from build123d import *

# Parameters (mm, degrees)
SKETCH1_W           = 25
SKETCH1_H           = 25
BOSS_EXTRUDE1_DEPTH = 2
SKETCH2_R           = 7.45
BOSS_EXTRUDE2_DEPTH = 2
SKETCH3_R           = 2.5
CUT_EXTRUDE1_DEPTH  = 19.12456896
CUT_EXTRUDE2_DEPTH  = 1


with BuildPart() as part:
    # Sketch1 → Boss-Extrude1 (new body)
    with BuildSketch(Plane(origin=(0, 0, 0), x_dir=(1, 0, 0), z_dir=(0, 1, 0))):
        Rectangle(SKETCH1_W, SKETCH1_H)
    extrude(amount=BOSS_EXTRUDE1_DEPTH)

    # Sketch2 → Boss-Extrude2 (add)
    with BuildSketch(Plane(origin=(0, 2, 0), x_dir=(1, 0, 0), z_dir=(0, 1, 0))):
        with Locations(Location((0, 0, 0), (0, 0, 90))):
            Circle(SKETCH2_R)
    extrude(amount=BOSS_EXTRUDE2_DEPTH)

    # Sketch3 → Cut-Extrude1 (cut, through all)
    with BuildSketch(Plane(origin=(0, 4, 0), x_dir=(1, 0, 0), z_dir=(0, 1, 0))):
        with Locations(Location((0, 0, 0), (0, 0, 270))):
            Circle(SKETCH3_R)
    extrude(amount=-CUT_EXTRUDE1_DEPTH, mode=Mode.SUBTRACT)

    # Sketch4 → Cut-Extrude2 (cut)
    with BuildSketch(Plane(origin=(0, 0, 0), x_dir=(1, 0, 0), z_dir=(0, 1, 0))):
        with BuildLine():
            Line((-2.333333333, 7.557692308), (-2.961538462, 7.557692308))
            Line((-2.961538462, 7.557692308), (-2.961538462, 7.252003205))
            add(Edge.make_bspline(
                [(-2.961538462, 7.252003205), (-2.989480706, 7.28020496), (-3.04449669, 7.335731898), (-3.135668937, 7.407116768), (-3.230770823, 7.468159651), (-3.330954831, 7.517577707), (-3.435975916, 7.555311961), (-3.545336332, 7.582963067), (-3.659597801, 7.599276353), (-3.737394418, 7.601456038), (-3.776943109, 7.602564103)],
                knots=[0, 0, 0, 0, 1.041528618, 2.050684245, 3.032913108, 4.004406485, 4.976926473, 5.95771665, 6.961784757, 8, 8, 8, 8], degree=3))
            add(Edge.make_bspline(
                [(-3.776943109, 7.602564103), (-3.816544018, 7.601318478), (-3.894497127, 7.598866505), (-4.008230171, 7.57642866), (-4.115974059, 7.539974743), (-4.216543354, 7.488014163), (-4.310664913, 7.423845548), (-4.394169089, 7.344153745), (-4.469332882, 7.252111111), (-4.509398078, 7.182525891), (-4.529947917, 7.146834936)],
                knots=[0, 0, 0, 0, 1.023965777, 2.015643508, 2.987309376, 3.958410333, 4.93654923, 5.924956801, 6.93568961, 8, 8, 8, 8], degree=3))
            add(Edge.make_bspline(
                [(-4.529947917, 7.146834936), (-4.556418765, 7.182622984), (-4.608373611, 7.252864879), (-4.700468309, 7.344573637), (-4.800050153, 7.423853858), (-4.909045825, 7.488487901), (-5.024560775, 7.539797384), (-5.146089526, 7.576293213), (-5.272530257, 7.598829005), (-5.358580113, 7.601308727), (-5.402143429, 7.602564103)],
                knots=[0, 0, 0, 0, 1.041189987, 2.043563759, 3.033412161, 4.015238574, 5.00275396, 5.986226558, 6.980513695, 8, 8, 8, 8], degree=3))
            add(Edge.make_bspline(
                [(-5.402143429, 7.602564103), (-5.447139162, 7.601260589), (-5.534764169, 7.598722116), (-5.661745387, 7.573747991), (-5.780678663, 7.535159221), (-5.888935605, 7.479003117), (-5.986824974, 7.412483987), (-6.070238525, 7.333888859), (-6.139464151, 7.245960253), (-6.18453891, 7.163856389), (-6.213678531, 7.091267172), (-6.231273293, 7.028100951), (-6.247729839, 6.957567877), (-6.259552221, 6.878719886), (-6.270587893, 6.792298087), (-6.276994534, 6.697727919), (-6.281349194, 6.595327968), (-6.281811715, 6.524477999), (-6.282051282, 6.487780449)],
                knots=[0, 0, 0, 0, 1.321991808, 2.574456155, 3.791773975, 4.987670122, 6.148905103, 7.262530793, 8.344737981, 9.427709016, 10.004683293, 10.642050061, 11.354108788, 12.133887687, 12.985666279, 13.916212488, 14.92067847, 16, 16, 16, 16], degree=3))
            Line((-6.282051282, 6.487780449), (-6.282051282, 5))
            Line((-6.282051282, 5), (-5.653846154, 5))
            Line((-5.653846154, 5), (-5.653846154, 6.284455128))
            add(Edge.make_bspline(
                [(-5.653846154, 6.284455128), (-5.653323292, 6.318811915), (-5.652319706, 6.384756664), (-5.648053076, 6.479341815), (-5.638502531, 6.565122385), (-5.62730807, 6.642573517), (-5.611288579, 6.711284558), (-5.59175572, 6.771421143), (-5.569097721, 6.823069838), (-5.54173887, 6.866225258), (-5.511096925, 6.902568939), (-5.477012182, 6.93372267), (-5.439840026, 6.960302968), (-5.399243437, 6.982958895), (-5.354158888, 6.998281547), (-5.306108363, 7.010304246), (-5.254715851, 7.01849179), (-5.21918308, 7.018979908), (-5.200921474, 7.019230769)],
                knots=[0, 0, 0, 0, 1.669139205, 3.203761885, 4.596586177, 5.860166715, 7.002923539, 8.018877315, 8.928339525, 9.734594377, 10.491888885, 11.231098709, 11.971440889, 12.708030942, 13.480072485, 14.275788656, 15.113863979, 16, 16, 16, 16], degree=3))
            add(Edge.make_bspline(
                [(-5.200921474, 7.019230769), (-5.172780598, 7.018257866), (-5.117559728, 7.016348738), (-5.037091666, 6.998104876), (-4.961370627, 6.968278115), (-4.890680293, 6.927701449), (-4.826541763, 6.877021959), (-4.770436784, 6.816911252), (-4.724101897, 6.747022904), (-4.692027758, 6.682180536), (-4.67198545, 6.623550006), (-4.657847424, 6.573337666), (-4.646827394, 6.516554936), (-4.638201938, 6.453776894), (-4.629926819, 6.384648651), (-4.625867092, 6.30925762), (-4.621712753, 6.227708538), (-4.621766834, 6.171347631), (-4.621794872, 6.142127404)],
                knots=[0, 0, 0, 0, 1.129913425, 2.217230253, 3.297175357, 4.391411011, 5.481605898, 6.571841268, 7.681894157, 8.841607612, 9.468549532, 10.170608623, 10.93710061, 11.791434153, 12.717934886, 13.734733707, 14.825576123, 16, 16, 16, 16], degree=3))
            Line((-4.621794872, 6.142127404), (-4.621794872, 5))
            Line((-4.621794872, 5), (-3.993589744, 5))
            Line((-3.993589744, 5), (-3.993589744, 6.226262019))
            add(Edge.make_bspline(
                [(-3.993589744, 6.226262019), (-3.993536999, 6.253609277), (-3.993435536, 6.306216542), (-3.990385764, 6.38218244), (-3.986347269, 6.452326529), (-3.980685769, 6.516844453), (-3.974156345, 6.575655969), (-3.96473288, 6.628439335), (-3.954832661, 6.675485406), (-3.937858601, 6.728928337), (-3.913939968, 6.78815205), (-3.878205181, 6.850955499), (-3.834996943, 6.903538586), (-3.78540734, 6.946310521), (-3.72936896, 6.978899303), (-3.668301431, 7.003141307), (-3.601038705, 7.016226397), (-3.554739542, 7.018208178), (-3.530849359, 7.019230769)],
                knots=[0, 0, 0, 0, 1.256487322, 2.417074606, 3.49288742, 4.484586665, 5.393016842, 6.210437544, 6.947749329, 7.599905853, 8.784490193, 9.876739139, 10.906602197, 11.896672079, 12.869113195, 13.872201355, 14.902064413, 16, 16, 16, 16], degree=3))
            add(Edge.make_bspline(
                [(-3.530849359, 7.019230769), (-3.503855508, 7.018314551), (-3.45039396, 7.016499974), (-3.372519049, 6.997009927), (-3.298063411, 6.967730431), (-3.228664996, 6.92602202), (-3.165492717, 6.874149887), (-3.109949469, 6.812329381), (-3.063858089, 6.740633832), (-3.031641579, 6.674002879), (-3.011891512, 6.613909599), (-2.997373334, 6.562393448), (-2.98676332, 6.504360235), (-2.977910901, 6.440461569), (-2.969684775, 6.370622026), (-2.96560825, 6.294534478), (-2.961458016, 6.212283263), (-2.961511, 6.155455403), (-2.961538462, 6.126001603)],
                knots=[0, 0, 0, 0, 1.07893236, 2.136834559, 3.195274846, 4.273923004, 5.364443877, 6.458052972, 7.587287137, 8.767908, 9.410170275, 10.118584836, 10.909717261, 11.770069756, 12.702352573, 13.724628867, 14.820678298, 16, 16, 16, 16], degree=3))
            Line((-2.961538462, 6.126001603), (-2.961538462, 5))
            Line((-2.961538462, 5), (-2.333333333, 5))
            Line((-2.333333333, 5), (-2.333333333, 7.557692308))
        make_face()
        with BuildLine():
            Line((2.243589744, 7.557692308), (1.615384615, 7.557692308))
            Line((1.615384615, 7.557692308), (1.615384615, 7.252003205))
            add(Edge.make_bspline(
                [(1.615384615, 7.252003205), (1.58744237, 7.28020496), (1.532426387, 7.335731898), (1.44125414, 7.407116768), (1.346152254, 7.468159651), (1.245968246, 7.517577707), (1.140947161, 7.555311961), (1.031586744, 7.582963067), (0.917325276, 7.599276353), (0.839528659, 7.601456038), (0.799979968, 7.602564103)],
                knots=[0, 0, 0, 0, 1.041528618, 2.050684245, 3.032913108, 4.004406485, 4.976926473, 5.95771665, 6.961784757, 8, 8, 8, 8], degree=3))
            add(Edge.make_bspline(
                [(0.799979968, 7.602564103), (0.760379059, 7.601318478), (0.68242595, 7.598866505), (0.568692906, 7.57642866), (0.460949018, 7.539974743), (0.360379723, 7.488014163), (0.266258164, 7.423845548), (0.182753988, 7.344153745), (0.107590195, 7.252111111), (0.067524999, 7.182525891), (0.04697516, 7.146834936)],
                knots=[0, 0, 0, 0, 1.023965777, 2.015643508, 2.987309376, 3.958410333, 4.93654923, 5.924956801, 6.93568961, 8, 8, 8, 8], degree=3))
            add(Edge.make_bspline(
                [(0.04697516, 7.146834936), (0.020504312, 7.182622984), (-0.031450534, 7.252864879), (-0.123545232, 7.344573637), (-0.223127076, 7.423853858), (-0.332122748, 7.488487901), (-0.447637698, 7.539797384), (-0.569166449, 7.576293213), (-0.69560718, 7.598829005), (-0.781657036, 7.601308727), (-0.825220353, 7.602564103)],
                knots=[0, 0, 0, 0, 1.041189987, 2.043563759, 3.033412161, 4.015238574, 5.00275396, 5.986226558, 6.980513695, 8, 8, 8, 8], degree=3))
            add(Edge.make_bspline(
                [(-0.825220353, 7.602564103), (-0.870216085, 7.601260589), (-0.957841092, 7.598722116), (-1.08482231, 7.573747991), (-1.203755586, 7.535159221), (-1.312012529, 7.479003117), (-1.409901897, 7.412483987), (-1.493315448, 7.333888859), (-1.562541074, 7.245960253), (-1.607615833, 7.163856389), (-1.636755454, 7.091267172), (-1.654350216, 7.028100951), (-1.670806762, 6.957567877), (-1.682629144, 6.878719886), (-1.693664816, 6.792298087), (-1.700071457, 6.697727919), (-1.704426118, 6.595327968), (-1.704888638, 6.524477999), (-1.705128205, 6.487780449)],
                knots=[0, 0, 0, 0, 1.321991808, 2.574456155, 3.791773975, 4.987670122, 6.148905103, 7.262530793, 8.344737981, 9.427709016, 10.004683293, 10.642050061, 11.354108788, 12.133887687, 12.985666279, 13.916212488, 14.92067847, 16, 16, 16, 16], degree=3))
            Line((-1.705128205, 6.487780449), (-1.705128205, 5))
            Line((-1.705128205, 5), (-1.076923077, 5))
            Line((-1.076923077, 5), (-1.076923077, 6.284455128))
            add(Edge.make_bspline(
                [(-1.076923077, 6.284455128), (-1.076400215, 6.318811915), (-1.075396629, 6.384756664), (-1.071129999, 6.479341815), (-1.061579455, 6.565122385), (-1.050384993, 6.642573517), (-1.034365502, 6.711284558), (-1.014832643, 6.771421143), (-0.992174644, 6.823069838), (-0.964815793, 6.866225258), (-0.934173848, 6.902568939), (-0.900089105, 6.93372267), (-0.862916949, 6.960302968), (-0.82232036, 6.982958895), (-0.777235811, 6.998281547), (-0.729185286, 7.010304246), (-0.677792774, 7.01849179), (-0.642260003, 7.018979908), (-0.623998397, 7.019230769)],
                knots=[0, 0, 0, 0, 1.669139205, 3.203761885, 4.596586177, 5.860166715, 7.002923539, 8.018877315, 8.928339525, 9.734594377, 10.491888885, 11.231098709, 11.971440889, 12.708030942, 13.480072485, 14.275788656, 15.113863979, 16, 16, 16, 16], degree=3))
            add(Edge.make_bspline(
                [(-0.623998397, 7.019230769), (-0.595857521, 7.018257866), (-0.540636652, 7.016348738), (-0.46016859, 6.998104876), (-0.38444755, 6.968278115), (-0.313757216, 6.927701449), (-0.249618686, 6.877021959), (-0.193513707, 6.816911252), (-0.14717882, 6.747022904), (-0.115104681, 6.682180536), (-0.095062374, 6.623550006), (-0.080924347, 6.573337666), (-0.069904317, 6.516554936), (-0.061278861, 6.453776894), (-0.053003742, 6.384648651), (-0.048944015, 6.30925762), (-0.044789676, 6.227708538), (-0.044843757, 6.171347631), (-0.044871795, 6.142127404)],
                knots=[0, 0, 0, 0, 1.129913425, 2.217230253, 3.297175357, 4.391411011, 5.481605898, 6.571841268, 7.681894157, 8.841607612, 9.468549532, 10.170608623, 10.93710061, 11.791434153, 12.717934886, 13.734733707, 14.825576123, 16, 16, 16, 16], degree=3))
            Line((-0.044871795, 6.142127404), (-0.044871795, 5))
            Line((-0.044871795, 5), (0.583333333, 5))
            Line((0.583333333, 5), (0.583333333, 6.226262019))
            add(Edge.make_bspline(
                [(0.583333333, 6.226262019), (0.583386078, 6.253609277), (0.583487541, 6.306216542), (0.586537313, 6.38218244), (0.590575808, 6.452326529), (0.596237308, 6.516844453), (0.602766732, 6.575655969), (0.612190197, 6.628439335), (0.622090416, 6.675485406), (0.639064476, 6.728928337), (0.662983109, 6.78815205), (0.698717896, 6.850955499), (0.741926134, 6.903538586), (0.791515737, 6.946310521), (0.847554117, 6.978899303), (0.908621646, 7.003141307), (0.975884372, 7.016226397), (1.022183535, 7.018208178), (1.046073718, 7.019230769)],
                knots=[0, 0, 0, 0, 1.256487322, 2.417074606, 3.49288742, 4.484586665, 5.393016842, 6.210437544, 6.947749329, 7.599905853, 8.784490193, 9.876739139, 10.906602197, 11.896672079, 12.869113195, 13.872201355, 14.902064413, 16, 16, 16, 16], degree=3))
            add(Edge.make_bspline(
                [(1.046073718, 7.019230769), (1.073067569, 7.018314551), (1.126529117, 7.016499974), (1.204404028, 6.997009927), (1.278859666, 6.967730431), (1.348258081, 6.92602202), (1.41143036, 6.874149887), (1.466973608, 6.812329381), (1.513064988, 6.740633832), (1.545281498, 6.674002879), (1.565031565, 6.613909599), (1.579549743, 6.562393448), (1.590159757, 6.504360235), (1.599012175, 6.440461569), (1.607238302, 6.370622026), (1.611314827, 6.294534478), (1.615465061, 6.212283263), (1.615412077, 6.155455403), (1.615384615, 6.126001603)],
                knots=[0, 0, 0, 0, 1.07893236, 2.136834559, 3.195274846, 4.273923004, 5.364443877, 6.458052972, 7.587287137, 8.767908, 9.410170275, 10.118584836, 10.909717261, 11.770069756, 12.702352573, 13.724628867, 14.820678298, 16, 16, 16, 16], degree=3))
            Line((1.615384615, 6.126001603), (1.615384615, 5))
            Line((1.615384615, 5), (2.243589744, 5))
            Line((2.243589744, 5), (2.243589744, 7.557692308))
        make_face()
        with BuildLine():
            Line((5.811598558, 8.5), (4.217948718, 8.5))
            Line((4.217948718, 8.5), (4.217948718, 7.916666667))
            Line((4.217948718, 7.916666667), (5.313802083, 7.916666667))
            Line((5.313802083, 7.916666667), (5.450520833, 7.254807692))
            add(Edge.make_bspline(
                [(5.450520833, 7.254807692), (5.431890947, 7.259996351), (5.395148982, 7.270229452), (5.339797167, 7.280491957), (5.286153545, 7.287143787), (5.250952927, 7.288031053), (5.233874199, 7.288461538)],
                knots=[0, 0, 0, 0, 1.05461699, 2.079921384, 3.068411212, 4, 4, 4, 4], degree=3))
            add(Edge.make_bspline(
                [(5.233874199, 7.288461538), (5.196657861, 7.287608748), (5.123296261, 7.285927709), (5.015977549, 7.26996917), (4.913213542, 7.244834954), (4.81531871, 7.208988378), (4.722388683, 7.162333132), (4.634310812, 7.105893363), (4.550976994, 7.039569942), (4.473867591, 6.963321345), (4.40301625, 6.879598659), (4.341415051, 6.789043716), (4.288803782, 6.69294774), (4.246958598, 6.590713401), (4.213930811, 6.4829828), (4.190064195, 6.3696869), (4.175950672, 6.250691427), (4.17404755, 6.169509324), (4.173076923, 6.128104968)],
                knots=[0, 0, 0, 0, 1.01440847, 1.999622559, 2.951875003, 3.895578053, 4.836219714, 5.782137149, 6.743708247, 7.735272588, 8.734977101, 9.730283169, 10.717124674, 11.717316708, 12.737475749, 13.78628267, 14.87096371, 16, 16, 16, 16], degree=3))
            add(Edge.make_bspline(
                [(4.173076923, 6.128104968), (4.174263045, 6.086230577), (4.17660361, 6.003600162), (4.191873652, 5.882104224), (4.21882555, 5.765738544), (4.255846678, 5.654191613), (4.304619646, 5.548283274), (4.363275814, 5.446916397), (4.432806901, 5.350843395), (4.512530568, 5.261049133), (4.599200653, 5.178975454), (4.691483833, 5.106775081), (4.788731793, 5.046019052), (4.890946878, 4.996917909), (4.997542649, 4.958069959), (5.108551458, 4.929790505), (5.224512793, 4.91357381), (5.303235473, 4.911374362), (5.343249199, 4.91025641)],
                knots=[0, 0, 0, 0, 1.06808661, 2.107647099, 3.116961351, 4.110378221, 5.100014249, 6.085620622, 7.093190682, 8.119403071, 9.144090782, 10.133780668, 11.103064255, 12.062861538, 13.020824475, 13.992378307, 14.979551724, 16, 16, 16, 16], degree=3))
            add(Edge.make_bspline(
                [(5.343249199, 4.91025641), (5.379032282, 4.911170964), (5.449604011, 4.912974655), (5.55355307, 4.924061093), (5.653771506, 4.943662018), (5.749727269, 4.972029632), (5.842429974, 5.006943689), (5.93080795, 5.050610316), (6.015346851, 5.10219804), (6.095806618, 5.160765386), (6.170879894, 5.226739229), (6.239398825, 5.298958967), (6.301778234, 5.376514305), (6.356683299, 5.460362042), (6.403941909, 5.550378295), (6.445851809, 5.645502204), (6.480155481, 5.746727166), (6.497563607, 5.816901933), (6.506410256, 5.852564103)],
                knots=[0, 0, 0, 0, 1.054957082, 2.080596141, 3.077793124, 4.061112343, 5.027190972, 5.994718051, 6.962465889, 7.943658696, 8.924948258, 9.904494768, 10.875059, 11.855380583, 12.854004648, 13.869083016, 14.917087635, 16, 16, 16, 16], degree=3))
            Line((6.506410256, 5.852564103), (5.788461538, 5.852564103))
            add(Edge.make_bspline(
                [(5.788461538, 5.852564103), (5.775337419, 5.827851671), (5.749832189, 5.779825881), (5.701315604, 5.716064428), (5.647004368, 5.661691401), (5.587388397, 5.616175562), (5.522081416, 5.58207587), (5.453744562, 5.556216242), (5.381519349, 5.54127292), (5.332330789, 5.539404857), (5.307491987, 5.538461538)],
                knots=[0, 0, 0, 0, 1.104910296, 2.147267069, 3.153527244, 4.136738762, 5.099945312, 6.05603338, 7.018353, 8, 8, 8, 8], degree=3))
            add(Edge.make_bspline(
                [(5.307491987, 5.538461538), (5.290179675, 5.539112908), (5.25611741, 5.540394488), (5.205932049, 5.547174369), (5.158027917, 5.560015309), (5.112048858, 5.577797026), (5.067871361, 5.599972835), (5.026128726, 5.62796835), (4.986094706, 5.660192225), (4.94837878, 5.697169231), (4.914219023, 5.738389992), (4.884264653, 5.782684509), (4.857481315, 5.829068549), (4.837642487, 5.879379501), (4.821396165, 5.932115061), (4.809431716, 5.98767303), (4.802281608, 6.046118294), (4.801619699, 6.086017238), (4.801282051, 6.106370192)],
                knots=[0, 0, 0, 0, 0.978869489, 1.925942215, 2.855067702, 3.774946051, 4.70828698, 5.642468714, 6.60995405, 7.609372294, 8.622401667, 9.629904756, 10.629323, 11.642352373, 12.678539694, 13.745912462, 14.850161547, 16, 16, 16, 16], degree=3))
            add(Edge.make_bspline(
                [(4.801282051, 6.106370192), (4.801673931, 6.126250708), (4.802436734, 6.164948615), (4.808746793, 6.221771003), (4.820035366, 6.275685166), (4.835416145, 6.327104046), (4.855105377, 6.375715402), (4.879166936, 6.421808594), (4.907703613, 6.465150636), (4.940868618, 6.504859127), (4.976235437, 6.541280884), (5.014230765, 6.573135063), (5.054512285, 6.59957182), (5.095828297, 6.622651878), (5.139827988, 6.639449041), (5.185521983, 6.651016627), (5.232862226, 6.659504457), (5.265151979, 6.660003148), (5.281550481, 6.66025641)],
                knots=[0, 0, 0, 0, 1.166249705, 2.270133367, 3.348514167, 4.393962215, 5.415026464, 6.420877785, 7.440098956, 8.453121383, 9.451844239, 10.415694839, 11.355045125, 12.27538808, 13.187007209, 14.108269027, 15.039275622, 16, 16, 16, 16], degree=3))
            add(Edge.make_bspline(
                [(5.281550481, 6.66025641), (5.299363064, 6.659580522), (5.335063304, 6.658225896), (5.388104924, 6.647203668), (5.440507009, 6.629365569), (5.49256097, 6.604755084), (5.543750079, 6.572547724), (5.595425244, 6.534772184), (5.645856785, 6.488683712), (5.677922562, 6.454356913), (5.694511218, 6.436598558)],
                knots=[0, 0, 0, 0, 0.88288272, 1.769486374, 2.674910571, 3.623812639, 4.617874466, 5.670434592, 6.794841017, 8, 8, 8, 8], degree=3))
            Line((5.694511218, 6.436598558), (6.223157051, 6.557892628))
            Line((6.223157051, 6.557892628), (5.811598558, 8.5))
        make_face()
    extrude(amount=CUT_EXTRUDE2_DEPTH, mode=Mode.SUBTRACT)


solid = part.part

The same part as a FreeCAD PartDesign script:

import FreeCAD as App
import Part
import Sketcher

V = App.Vector
Q = App.Units.Quantity

doc = App.newDocument("Part")
body = doc.addObject("PartDesign::Body", "Body")

sketch1 = body.newObject("Sketcher::SketchObject", "Sketch")
sketch1.AttachmentSupport = (doc.getObject("XZ_Plane"), [""])
sketch1.MapMode = "FlatFace"
sketch1.addGeometry(Part.LineSegment(V(-12, -12, 0), V(-12, 12, 0)), False)
sketch1.addGeometry(Part.LineSegment(V(-12, 12, 0), V(12, 12, 0)), False)
sketch1.addGeometry(Part.LineSegment(V(12, 12, 0), V(12, -12, 0)), False)
sketch1.addGeometry(Part.LineSegment(V(12, -12, 0), V(-12, -12, 0)), False)
sketch1.addConstraint(Sketcher.Constraint("Coincident", 0, 2, 1, 1))
sketch1.addConstraint(Sketcher.Constraint("Coincident", 1, 2, 2, 1))
sketch1.addConstraint(Sketcher.Constraint("Coincident", 2, 2, 3, 1))
sketch1.addConstraint(Sketcher.Constraint("Coincident", 3, 2, 0, 1))
sketch1.addConstraint(Sketcher.Constraint("Vertical", 0))
sketch1.addConstraint(Sketcher.Constraint("Horizontal", 1))
sketch1.addConstraint(Sketcher.Constraint("Vertical", 2))
sketch1.addConstraint(Sketcher.Constraint("Horizontal", 3))
sketch1.addConstraint(Sketcher.Constraint("Symmetric", 0, 2, 2, 2, -1, 1))
sketch1.addConstraint(Sketcher.Constraint("Equal", 3, 0))
sketch1.addConstraint(Sketcher.Constraint("DistanceX", 1, 1, 1, 2, Q("25 mm")))
pad1 = body.newObject("PartDesign::Pad", "Pad")
pad1.Profile = sketch1
pad1.Length = 2
pad1.Reversed = True

sketch2 = body.newObject("Sketcher::SketchObject", "Sketch001")
sketch2.AttachmentSupport = (doc.getObject("XZ_Plane"), [""])
sketch2.MapMode = "FlatFace"
sketch2.AttachmentOffset = App.Placement(V(0, 0, -2), App.Rotation())
sketch2.addGeometry(Part.Circle(V(0, 0, 0), V(0, 0, 1), 7), False)
sketch2.addConstraint(Sketcher.Constraint("Coincident", 0, 3, -1, 1))
sketch2.addConstraint(Sketcher.Constraint("Diameter", 0, Q("14.9 mm")))
pad2 = body.newObject("PartDesign::Pad", "Pad001")
pad2.Profile = sketch2
pad2.Length = 2
pad2.Reversed = True

sketch3 = body.newObject("Sketcher::SketchObject", "Sketch002")
sketch3.AttachmentSupport = (doc.getObject("XZ_Plane"), [""])
sketch3.MapMode = "FlatFace"
sketch3.AttachmentOffset = App.Placement(V(0, 0, -4), App.Rotation())
sketch3.addGeometry(Part.Circle(V(0, 0, 0), V(0, 0, 1), 2.5), False)
sketch3.addConstraint(Sketcher.Constraint("Coincident", 0, 3, -1, 1))
sketch3.addConstraint(Sketcher.Constraint("Diameter", 0, Q("5 mm")))
pocket1 = body.newObject("PartDesign::Pocket", "Pocket")
pocket1.Profile = sketch3
pocket1.Type = "ThroughAll"
pocket1.Reversed = True

sketch4 = body.newObject("Sketcher::SketchObject", "Sketch003")
sketch4.AttachmentSupport = (doc.getObject("XZ_Plane"), [""])
sketch4.MapMode = "FlatFace"
sketch4.addGeometry(Part.LineSegment(V(-2.333333, -7.557692, 0), V(-2.961538, -7.557692, 0)), False)
sketch4.addGeometry(Part.LineSegment(V(-2.961538, -7.557692, 0), V(-2.961538, -7.252003, 0)), False)
sketch4.addGeometry(Part.BSplineCurve([V(-2.961538, -7.252003, 0), V(-2.989481, -7.280205, 0), V(-3.044497, -7.335732, 0), V(-3.135669, -7.407117, 0), V(-3.230771, -7.46816, 0), V(-3.330955, -7.517578, 0), V(-3.435976, -7.555312, 0), V(-3.545336, -7.582963, 0), V(-3.659598, -7.599276, 0), V(-3.737394, -7.601456, 0), V(-3.776943, -7.602564, 0)], [4, 1, 1, 1, 1, 1, 1, 1, 4], [0, 1.041528618, 2.050684245, 3.032913108, 4.004406485, 4.976926473, 5.95771665, 6.961784757, 8], False, 3, [1, 1, 1, 1, 1, 1, 1, 1, 1, 1, 1], False), False)
sketch4.addGeometry(Part.BSplineCurve([V(-3.776943, -7.602564, 0), V(-3.816544, -7.601318, 0), V(-3.894497, -7.598867, 0), V(-4.00823, -7.576429, 0), V(-4.115974, -7.539975, 0), V(-4.216543, -7.488014, 0), V(-4.310665, -7.423846, 0), V(-4.394169, -7.344154, 0), V(-4.469333, -7.252111, 0), V(-4.509398, -7.182526, 0), V(-4.529948, -7.146835, 0)], [4, 1, 1, 1, 1, 1, 1, 1, 4], [0, 1.023965777, 2.015643508, 2.987309376, 3.958410333, 4.93654923, 5.924956801, 6.93568961, 8], False, 3, [1, 1, 1, 1, 1, 1, 1, 1, 1, 1, 1], False), False)
sketch4.addGeometry(Part.BSplineCurve([V(-4.529948, -7.146835, 0), V(-4.556419, -7.182623, 0), V(-4.608374, -7.252865, 0), V(-4.700468, -7.344574, 0), V(-4.80005, -7.423854, 0), V(-4.909046, -7.488488, 0), V(-5.024561, -7.539797, 0), V(-5.14609, -7.576293, 0), V(-5.27253, -7.598829, 0), V(-5.35858, -7.601309, 0), V(-5.402143, -7.602564, 0)], [4, 1, 1, 1, 1, 1, 1, 1, 4], [0, 1.041189987, 2.043563759, 3.033412161, 4.015238574, 5.00275396, 5.986226558, 6.980513695, 8], False, 3, [1, 1, 1, 1, 1, 1, 1, 1, 1, 1, 1], False), False)
sketch4.addGeometry(Part.BSplineCurve([V(-5.402143, -7.602564, 0), V(-5.447139, -7.601261, 0), V(-5.534764, -7.598722, 0), V(-5.661745, -7.573748, 0), V(-5.780679, -7.535159, 0), V(-5.888936, -7.479003, 0), V(-5.986825, -7.412484, 0), V(-6.070239, -7.333889, 0), V(-6.139464, -7.24596, 0), V(-6.184539, -7.163856, 0), V(-6.213679, -7.091267, 0), V(-6.231273, -7.028101, 0), V(-6.24773, -6.957568, 0), V(-6.259552, -6.87872, 0), V(-6.270588, -6.792298, 0), V(-6.276995, -6.697728, 0), V(-6.281349, -6.595328, 0), V(-6.281812, -6.524478, 0), V(-6.282051, -6.48778, 0)], [4, 1, 1, 1, 1, 1, 1, 1, 1, 1, 1, 1, 1, 1, 1, 1, 4], [0, 1.321991808, 2.574456155, 3.791773975, 4.987670122, 6.148905103, 7.262530793, 8.344737981, 9.427709016, 10.004683293, 10.642050061, 11.354108788, 12.133887687, 12.985666279, 13.916212488, 14.92067847, 16], False, 3, [1, 1, 1, 1, 1, 1, 1, 1, 1, 1, 1, 1, 1, 1, 1, 1, 1, 1, 1], False), False)
sketch4.addGeometry(Part.LineSegment(V(-6.282051, -6.48778, 0), V(-6.282051, -5, 0)), False)
sketch4.addGeometry(Part.LineSegment(V(-6.282051, -5, 0), V(-5.653846, -5, 0)), False)
sketch4.addGeometry(Part.LineSegment(V(-5.653846, -5, 0), V(-5.653846, -6.284455, 0)), False)
sketch4.addGeometry(Part.BSplineCurve([V(-5.653846, -6.284455, 0), V(-5.653323, -6.318812, 0), V(-5.65232, -6.384757, 0), V(-5.648053, -6.479342, 0), V(-5.638503, -6.565122, 0), V(-5.627308, -6.642574, 0), V(-5.611289, -6.711285, 0), V(-5.591756, -6.771421, 0), V(-5.569098, -6.82307, 0), V(-5.541739, -6.866225, 0), V(-5.511097, -6.902569, 0), V(-5.477012, -6.933723, 0), V(-5.43984, -6.960303, 0), V(-5.399243, -6.982959, 0), V(-5.354159, -6.998282, 0), V(-5.306108, -7.010304, 0), V(-5.254716, -7.018492, 0), V(-5.219183, -7.01898, 0), V(-5.200921, -7.019231, 0)], [4, 1, 1, 1, 1, 1, 1, 1, 1, 1, 1, 1, 1, 1, 1, 1, 4], [0, 1.669139205, 3.203761885, 4.596586177, 5.860166715, 7.002923539, 8.018877315, 8.928339525, 9.734594377, 10.491888885, 11.231098709, 11.971440889, 12.708030942, 13.480072485, 14.275788656, 15.113863979, 16], False, 3, [1, 1, 1, 1, 1, 1, 1, 1, 1, 1, 1, 1, 1, 1, 1, 1, 1, 1, 1], False), False)
sketch4.addGeometry(Part.BSplineCurve([V(-5.200921, -7.019231, 0), V(-5.172781, -7.018258, 0), V(-5.11756, -7.016349, 0), V(-5.037092, -6.998105, 0), V(-4.961371, -6.968278, 0), V(-4.89068, -6.927701, 0), V(-4.826542, -6.877022, 0), V(-4.770437, -6.816911, 0), V(-4.724102, -6.747023, 0), V(-4.692028, -6.682181, 0), V(-4.671985, -6.62355, 0), V(-4.657847, -6.573338, 0), V(-4.646827, -6.516555, 0), V(-4.638202, -6.453777, 0), V(-4.629927, -6.384649, 0), V(-4.625867, -6.309258, 0), V(-4.621713, -6.227709, 0), V(-4.621767, -6.171348, 0), V(-4.621795, -6.142127, 0)], [4, 1, 1, 1, 1, 1, 1, 1, 1, 1, 1, 1, 1, 1, 1, 1, 4], [0, 1.129913425, 2.217230253, 3.297175357, 4.391411011, 5.481605898, 6.571841268, 7.681894157, 8.841607612, 9.468549532, 10.170608623, 10.93710061, 11.791434153, 12.717934886, 13.734733707, 14.825576123, 16], False, 3, [1, 1, 1, 1, 1, 1, 1, 1, 1, 1, 1, 1, 1, 1, 1, 1, 1, 1, 1], False), False)
sketch4.addGeometry(Part.LineSegment(V(-4.621795, -6.142127, 0), V(-4.621795, -5, 0)), False)
sketch4.addGeometry(Part.LineSegment(V(-4.621795, -5, 0), V(-3.99359, -5, 0)), False)
sketch4.addGeometry(Part.LineSegment(V(-3.99359, -5, 0), V(-3.99359, -6.226262, 0)), False)
sketch4.addGeometry(Part.BSplineCurve([V(-3.99359, -6.226262, 0), V(-3.993537, -6.253609, 0), V(-3.993436, -6.306217, 0), V(-3.990386, -6.382182, 0), V(-3.986347, -6.452327, 0), V(-3.980686, -6.516844, 0), V(-3.974156, -6.575656, 0), V(-3.964733, -6.628439, 0), V(-3.954833, -6.675485, 0), V(-3.937859, -6.728928, 0), V(-3.91394, -6.788152, 0), V(-3.878205, -6.850955, 0), V(-3.834997, -6.903539, 0), V(-3.785407, -6.946311, 0), V(-3.729369, -6.978899, 0), V(-3.668301, -7.003141, 0), V(-3.601039, -7.016226, 0), V(-3.55474, -7.018208, 0), V(-3.530849, -7.019231, 0)], [4, 1, 1, 1, 1, 1, 1, 1, 1, 1, 1, 1, 1, 1, 1, 1, 4], [0, 1.256487322, 2.417074606, 3.49288742, 4.484586665, 5.393016842, 6.210437544, 6.947749329, 7.599905853, 8.784490193, 9.876739139, 10.906602197, 11.896672079, 12.869113195, 13.872201355, 14.902064413, 16], False, 3, [1, 1, 1, 1, 1, 1, 1, 1, 1, 1, 1, 1, 1, 1, 1, 1, 1, 1, 1], False), False)
sketch4.addGeometry(Part.BSplineCurve([V(-3.530849, -7.019231, 0), V(-3.503856, -7.018315, 0), V(-3.450394, -7.0165, 0), V(-3.372519, -6.99701, 0), V(-3.298063, -6.96773, 0), V(-3.228665, -6.926022, 0), V(-3.165493, -6.87415, 0), V(-3.109949, -6.812329, 0), V(-3.063858, -6.740634, 0), V(-3.031642, -6.674003, 0), V(-3.011892, -6.61391, 0), V(-2.997373, -6.562393, 0), V(-2.986763, -6.50436, 0), V(-2.977911, -6.440462, 0), V(-2.969685, -6.370622, 0), V(-2.965608, -6.294534, 0), V(-2.961458, -6.212283, 0), V(-2.961511, -6.155455, 0), V(-2.961538, -6.126002, 0)], [4, 1, 1, 1, 1, 1, 1, 1, 1, 1, 1, 1, 1, 1, 1, 1, 4], [0, 1.07893236, 2.136834559, 3.195274846, 4.273923004, 5.364443877, 6.458052972, 7.587287137, 8.767908, 9.410170275, 10.118584836, 10.909717261, 11.770069756, 12.702352573, 13.724628867, 14.820678298, 16], False, 3, [1, 1, 1, 1, 1, 1, 1, 1, 1, 1, 1, 1, 1, 1, 1, 1, 1, 1, 1], False), False)
sketch4.addGeometry(Part.LineSegment(V(-2.961538, -6.126002, 0), V(-2.961538, -5, 0)), False)
sketch4.addGeometry(Part.LineSegment(V(-2.961538, -5, 0), V(-2.333333, -5, 0)), False)
sketch4.addGeometry(Part.LineSegment(V(-2.333333, -5, 0), V(-2.333333, -7.557692, 0)), False)
sketch4.addGeometry(Part.LineSegment(V(2.24359, -7.557692, 0), V(1.615385, -7.557692, 0)), False)
sketch4.addGeometry(Part.LineSegment(V(1.615385, -7.557692, 0), V(1.615385, -7.252003, 0)), False)
sketch4.addGeometry(Part.BSplineCurve([V(1.615385, -7.252003, 0), V(1.587442, -7.280205, 0), V(1.532426, -7.335732, 0), V(1.441254, -7.407117, 0), V(1.346152, -7.46816, 0), V(1.245968, -7.517578, 0), V(1.140947, -7.555312, 0), V(1.031587, -7.582963, 0), V(0.917325, -7.599276, 0), V(0.839529, -7.601456, 0), V(0.79998, -7.602564, 0)], [4, 1, 1, 1, 1, 1, 1, 1, 4], [0, 1.041528618, 2.050684245, 3.032913108, 4.004406485, 4.976926473, 5.95771665, 6.961784757, 8], False, 3, [1, 1, 1, 1, 1, 1, 1, 1, 1, 1, 1], False), False)
sketch4.addGeometry(Part.BSplineCurve([V(0.79998, -7.602564, 0), V(0.760379, -7.601318, 0), V(0.682426, -7.598867, 0), V(0.568693, -7.576429, 0), V(0.460949, -7.539975, 0), V(0.36038, -7.488014, 0), V(0.266258, -7.423846, 0), V(0.182754, -7.344154, 0), V(0.10759, -7.252111, 0), V(0.067525, -7.182526, 0), V(0.046975, -7.146835, 0)], [4, 1, 1, 1, 1, 1, 1, 1, 4], [0, 1.023965777, 2.015643508, 2.987309376, 3.958410333, 4.93654923, 5.924956801, 6.93568961, 8], False, 3, [1, 1, 1, 1, 1, 1, 1, 1, 1, 1, 1], False), False)
sketch4.addGeometry(Part.BSplineCurve([V(0.046975, -7.146835, 0), V(0.020504, -7.182623, 0), V(-0.031451, -7.252865, 0), V(-0.123545, -7.344574, 0), V(-0.223127, -7.423854, 0), V(-0.332123, -7.488488, 0), V(-0.447638, -7.539797, 0), V(-0.569166, -7.576293, 0), V(-0.695607, -7.598829, 0), V(-0.781657, -7.601309, 0), V(-0.82522, -7.602564, 0)], [4, 1, 1, 1, 1, 1, 1, 1, 4], [0, 1.041189987, 2.043563759, 3.033412161, 4.015238574, 5.00275396, 5.986226558, 6.980513695, 8], False, 3, [1, 1, 1, 1, 1, 1, 1, 1, 1, 1, 1], False), False)
sketch4.addGeometry(Part.BSplineCurve([V(-0.82522, -7.602564, 0), V(-0.870216, -7.601261, 0), V(-0.957841, -7.598722, 0), V(-1.084822, -7.573748, 0), V(-1.203756, -7.535159, 0), V(-1.312013, -7.479003, 0), V(-1.409902, -7.412484, 0), V(-1.493315, -7.333889, 0), V(-1.562541, -7.24596, 0), V(-1.607616, -7.163856, 0), V(-1.636755, -7.091267, 0), V(-1.65435, -7.028101, 0), V(-1.670807, -6.957568, 0), V(-1.682629, -6.87872, 0), V(-1.693665, -6.792298, 0), V(-1.700071, -6.697728, 0), V(-1.704426, -6.595328, 0), V(-1.704889, -6.524478, 0), V(-1.705128, -6.48778, 0)], [4, 1, 1, 1, 1, 1, 1, 1, 1, 1, 1, 1, 1, 1, 1, 1, 4], [0, 1.321991808, 2.574456155, 3.791773975, 4.987670122, 6.148905103, 7.262530793, 8.344737981, 9.427709016, 10.004683293, 10.642050061, 11.354108788, 12.133887687, 12.985666279, 13.916212488, 14.92067847, 16], False, 3, [1, 1, 1, 1, 1, 1, 1, 1, 1, 1, 1, 1, 1, 1, 1, 1, 1, 1, 1], False), False)
sketch4.addGeometry(Part.LineSegment(V(-1.705128, -6.48778, 0), V(-1.705128, -5, 0)), False)
sketch4.addGeometry(Part.LineSegment(V(-1.705128, -5, 0), V(-1.076923, -5, 0)), False)
sketch4.addGeometry(Part.LineSegment(V(-1.076923, -5, 0), V(-1.076923, -6.284455, 0)), False)
sketch4.addGeometry(Part.BSplineCurve([V(-1.076923, -6.284455, 0), V(-1.0764, -6.318812, 0), V(-1.075397, -6.384757, 0), V(-1.07113, -6.479342, 0), V(-1.061579, -6.565122, 0), V(-1.050385, -6.642574, 0), V(-1.034366, -6.711285, 0), V(-1.014833, -6.771421, 0), V(-0.992175, -6.82307, 0), V(-0.964816, -6.866225, 0), V(-0.934174, -6.902569, 0), V(-0.900089, -6.933723, 0), V(-0.862917, -6.960303, 0), V(-0.82232, -6.982959, 0), V(-0.777236, -6.998282, 0), V(-0.729185, -7.010304, 0), V(-0.677793, -7.018492, 0), V(-0.64226, -7.01898, 0), V(-0.623998, -7.019231, 0)], [4, 1, 1, 1, 1, 1, 1, 1, 1, 1, 1, 1, 1, 1, 1, 1, 4], [0, 1.669139205, 3.203761885, 4.596586177, 5.860166715, 7.002923539, 8.018877315, 8.928339525, 9.734594377, 10.491888885, 11.231098709, 11.971440889, 12.708030942, 13.480072485, 14.275788656, 15.113863979, 16], False, 3, [1, 1, 1, 1, 1, 1, 1, 1, 1, 1, 1, 1, 1, 1, 1, 1, 1, 1, 1], False), False)
sketch4.addGeometry(Part.BSplineCurve([V(-0.623998, -7.019231, 0), V(-0.595858, -7.018258, 0), V(-0.540637, -7.016349, 0), V(-0.460169, -6.998105, 0), V(-0.384448, -6.968278, 0), V(-0.313757, -6.927701, 0), V(-0.249619, -6.877022, 0), V(-0.193514, -6.816911, 0), V(-0.147179, -6.747023, 0), V(-0.115105, -6.682181, 0), V(-0.095062, -6.62355, 0), V(-0.080924, -6.573338, 0), V(-0.069904, -6.516555, 0), V(-0.061279, -6.453777, 0), V(-0.053004, -6.384649, 0), V(-0.048944, -6.309258, 0), V(-0.04479, -6.227709, 0), V(-0.044844, -6.171348, 0), V(-0.044872, -6.142127, 0)], [4, 1, 1, 1, 1, 1, 1, 1, 1, 1, 1, 1, 1, 1, 1, 1, 4], [0, 1.129913425, 2.217230253, 3.297175357, 4.391411011, 5.481605898, 6.571841268, 7.681894157, 8.841607612, 9.468549532, 10.170608623, 10.93710061, 11.791434153, 12.717934886, 13.734733707, 14.825576123, 16], False, 3, [1, 1, 1, 1, 1, 1, 1, 1, 1, 1, 1, 1, 1, 1, 1, 1, 1, 1, 1], False), False)
sketch4.addGeometry(Part.LineSegment(V(-0.044872, -6.142127, 0), V(-0.044872, -5, 0)), False)
sketch4.addGeometry(Part.LineSegment(V(-0.044872, -5, 0), V(0.583333, -5, 0)), False)
sketch4.addGeometry(Part.LineSegment(V(0.583333, -5, 0), V(0.583333, -6.226262, 0)), False)
sketch4.addGeometry(Part.BSplineCurve([V(0.583333, -6.226262, 0), V(0.583386, -6.253609, 0), V(0.583488, -6.306217, 0), V(0.586537, -6.382182, 0), V(0.590576, -6.452327, 0), V(0.596237, -6.516844, 0), V(0.602767, -6.575656, 0), V(0.61219, -6.628439, 0), V(0.62209, -6.675485, 0), V(0.639064, -6.728928, 0), V(0.662983, -6.788152, 0), V(0.698718, -6.850955, 0), V(0.741926, -6.903539, 0), V(0.791516, -6.946311, 0), V(0.847554, -6.978899, 0), V(0.908622, -7.003141, 0), V(0.975884, -7.016226, 0), V(1.022184, -7.018208, 0), V(1.046074, -7.019231, 0)], [4, 1, 1, 1, 1, 1, 1, 1, 1, 1, 1, 1, 1, 1, 1, 1, 4], [0, 1.256487322, 2.417074606, 3.49288742, 4.484586665, 5.393016842, 6.210437544, 6.947749329, 7.599905853, 8.784490193, 9.876739139, 10.906602197, 11.896672079, 12.869113195, 13.872201355, 14.902064413, 16], False, 3, [1, 1, 1, 1, 1, 1, 1, 1, 1, 1, 1, 1, 1, 1, 1, 1, 1, 1, 1], False), False)
sketch4.addGeometry(Part.BSplineCurve([V(1.046074, -7.019231, 0), V(1.073068, -7.018315, 0), V(1.126529, -7.0165, 0), V(1.204404, -6.99701, 0), V(1.27886, -6.96773, 0), V(1.348258, -6.926022, 0), V(1.41143, -6.87415, 0), V(1.466974, -6.812329, 0), V(1.513065, -6.740634, 0), V(1.545281, -6.674003, 0), V(1.565032, -6.61391, 0), V(1.57955, -6.562393, 0), V(1.59016, -6.50436, 0), V(1.599012, -6.440462, 0), V(1.607238, -6.370622, 0), V(1.611315, -6.294534, 0), V(1.615465, -6.212283, 0), V(1.615412, -6.155455, 0), V(1.615385, -6.126002, 0)], [4, 1, 1, 1, 1, 1, 1, 1, 1, 1, 1, 1, 1, 1, 1, 1, 4], [0, 1.07893236, 2.136834559, 3.195274846, 4.273923004, 5.364443877, 6.458052972, 7.587287137, 8.767908, 9.410170275, 10.118584836, 10.909717261, 11.770069756, 12.702352573, 13.724628867, 14.820678298, 16], False, 3, [1, 1, 1, 1, 1, 1, 1, 1, 1, 1, 1, 1, 1, 1, 1, 1, 1, 1, 1], False), False)
sketch4.addGeometry(Part.LineSegment(V(1.615385, -6.126002, 0), V(1.615385, -5, 0)), False)
sketch4.addGeometry(Part.LineSegment(V(1.615385, -5, 0), V(2.24359, -5, 0)), False)
sketch4.addGeometry(Part.LineSegment(V(2.24359, -5, 0), V(2.24359, -7.557692, 0)), False)
sketch4.addGeometry(Part.LineSegment(V(5.811599, -8.5, 0), V(4.217949, -8.5, 0)), False)
sketch4.addGeometry(Part.LineSegment(V(4.217949, -8.5, 0), V(4.217949, -7.916667, 0)), False)
sketch4.addGeometry(Part.LineSegment(V(4.217949, -7.916667, 0), V(5.313802, -7.916667, 0)), False)
sketch4.addGeometry(Part.LineSegment(V(5.313802, -7.916667, 0), V(5.450521, -7.254808, 0)), False)
sketch4.addGeometry(Part.BSplineCurve([V(5.450521, -7.254808, 0), V(5.431891, -7.259996, 0), V(5.395149, -7.270229, 0), V(5.339797, -7.280492, 0), V(5.286154, -7.287144, 0), V(5.250953, -7.288031, 0), V(5.233874, -7.288462, 0)], [4, 1, 1, 1, 4], [0, 1.05461699, 2.079921384, 3.068411212, 4], False, 3, [1, 1, 1, 1, 1, 1, 1], False), False)
sketch4.addGeometry(Part.BSplineCurve([V(5.233874, -7.288462, 0), V(5.196658, -7.287609, 0), V(5.123296, -7.285928, 0), V(5.015978, -7.269969, 0), V(4.913214, -7.244835, 0), V(4.815319, -7.208988, 0), V(4.722389, -7.162333, 0), V(4.634311, -7.105893, 0), V(4.550977, -7.03957, 0), V(4.473868, -6.963321, 0), V(4.403016, -6.879599, 0), V(4.341415, -6.789044, 0), V(4.288804, -6.692948, 0), V(4.246959, -6.590713, 0), V(4.213931, -6.482983, 0), V(4.190064, -6.369687, 0), V(4.175951, -6.250691, 0), V(4.174048, -6.169509, 0), V(4.173077, -6.128105, 0)], [4, 1, 1, 1, 1, 1, 1, 1, 1, 1, 1, 1, 1, 1, 1, 1, 4], [0, 1.01440847, 1.999622559, 2.951875003, 3.895578053, 4.836219714, 5.782137149, 6.743708247, 7.735272588, 8.734977101, 9.730283169, 10.717124674, 11.717316708, 12.737475749, 13.78628267, 14.87096371, 16], False, 3, [1, 1, 1, 1, 1, 1, 1, 1, 1, 1, 1, 1, 1, 1, 1, 1, 1, 1, 1], False), False)
sketch4.addGeometry(Part.BSplineCurve([V(4.173077, -6.128105, 0), V(4.174263, -6.086231, 0), V(4.176604, -6.0036, 0), V(4.191874, -5.882104, 0), V(4.218826, -5.765739, 0), V(4.255847, -5.654192, 0), V(4.30462, -5.548283, 0), V(4.363276, -5.446916, 0), V(4.432807, -5.350843, 0), V(4.512531, -5.261049, 0), V(4.599201, -5.178975, 0), V(4.691484, -5.106775, 0), V(4.788732, -5.046019, 0), V(4.890947, -4.996918, 0), V(4.997543, -4.95807, 0), V(5.108551, -4.929791, 0), V(5.224513, -4.913574, 0), V(5.303235, -4.911374, 0), V(5.343249, -4.910256, 0)], [4, 1, 1, 1, 1, 1, 1, 1, 1, 1, 1, 1, 1, 1, 1, 1, 4], [0, 1.06808661, 2.107647099, 3.116961351, 4.110378221, 5.100014249, 6.085620622, 7.093190682, 8.119403071, 9.144090782, 10.133780668, 11.103064255, 12.062861538, 13.020824475, 13.992378307, 14.979551724, 16], False, 3, [1, 1, 1, 1, 1, 1, 1, 1, 1, 1, 1, 1, 1, 1, 1, 1, 1, 1, 1], False), False)
sketch4.addGeometry(Part.BSplineCurve([V(5.343249, -4.910256, 0), V(5.379032, -4.911171, 0), V(5.449604, -4.912975, 0), V(5.553553, -4.924061, 0), V(5.653772, -4.943662, 0), V(5.749727, -4.97203, 0), V(5.84243, -5.006944, 0), V(5.930808, -5.05061, 0), V(6.015347, -5.102198, 0), V(6.095807, -5.160765, 0), V(6.17088, -5.226739, 0), V(6.239399, -5.298959, 0), V(6.301778, -5.376514, 0), V(6.356683, -5.460362, 0), V(6.403942, -5.550378, 0), V(6.445852, -5.645502, 0), V(6.480155, -5.746727, 0), V(6.497564, -5.816902, 0), V(6.50641, -5.852564, 0)], [4, 1, 1, 1, 1, 1, 1, 1, 1, 1, 1, 1, 1, 1, 1, 1, 4], [0, 1.054957082, 2.080596141, 3.077793124, 4.061112343, 5.027190972, 5.994718051, 6.962465889, 7.943658696, 8.924948258, 9.904494768, 10.875059, 11.855380583, 12.854004648, 13.869083016, 14.917087635, 16], False, 3, [1, 1, 1, 1, 1, 1, 1, 1, 1, 1, 1, 1, 1, 1, 1, 1, 1, 1, 1], False), False)
sketch4.addGeometry(Part.LineSegment(V(6.50641, -5.852564, 0), V(5.788462, -5.852564, 0)), False)
sketch4.addGeometry(Part.BSplineCurve([V(5.788462, -5.852564, 0), V(5.775337, -5.827852, 0), V(5.749832, -5.779826, 0), V(5.701316, -5.716064, 0), V(5.647004, -5.661691, 0), V(5.587388, -5.616176, 0), V(5.522081, -5.582076, 0), V(5.453745, -5.556216, 0), V(5.381519, -5.541273, 0), V(5.332331, -5.539405, 0), V(5.307492, -5.538462, 0)], [4, 1, 1, 1, 1, 1, 1, 1, 4], [0, 1.104910296, 2.147267069, 3.153527244, 4.136738762, 5.099945312, 6.05603338, 7.018353, 8], False, 3, [1, 1, 1, 1, 1, 1, 1, 1, 1, 1, 1], False), False)
sketch4.addGeometry(Part.BSplineCurve([V(5.307492, -5.538462, 0), V(5.29018, -5.539113, 0), V(5.256117, -5.540394, 0), V(5.205932, -5.547174, 0), V(5.158028, -5.560015, 0), V(5.112049, -5.577797, 0), V(5.067871, -5.599973, 0), V(5.026129, -5.627968, 0), V(4.986095, -5.660192, 0), V(4.948379, -5.697169, 0), V(4.914219, -5.73839, 0), V(4.884265, -5.782685, 0), V(4.857481, -5.829069, 0), V(4.837642, -5.87938, 0), V(4.821396, -5.932115, 0), V(4.809432, -5.987673, 0), V(4.802282, -6.046118, 0), V(4.80162, -6.086017, 0), V(4.801282, -6.10637, 0)], [4, 1, 1, 1, 1, 1, 1, 1, 1, 1, 1, 1, 1, 1, 1, 1, 4], [0, 0.978869489, 1.925942215, 2.855067702, 3.774946051, 4.70828698, 5.642468714, 6.60995405, 7.609372294, 8.622401667, 9.629904756, 10.629323, 11.642352373, 12.678539694, 13.745912462, 14.850161547, 16], False, 3, [1, 1, 1, 1, 1, 1, 1, 1, 1, 1, 1, 1, 1, 1, 1, 1, 1, 1, 1], False), False)
sketch4.addGeometry(Part.BSplineCurve([V(4.801282, -6.10637, 0), V(4.801674, -6.126251, 0), V(4.802437, -6.164949, 0), V(4.808747, -6.221771, 0), V(4.820035, -6.275685, 0), V(4.835416, -6.327104, 0), V(4.855105, -6.375715, 0), V(4.879167, -6.421809, 0), V(4.907704, -6.465151, 0), V(4.940869, -6.504859, 0), V(4.976235, -6.541281, 0), V(5.014231, -6.573135, 0), V(5.054512, -6.599572, 0), V(5.095828, -6.622652, 0), V(5.139828, -6.639449, 0), V(5.185522, -6.651017, 0), V(5.232862, -6.659504, 0), V(5.265152, -6.660003, 0), V(5.28155, -6.660256, 0)], [4, 1, 1, 1, 1, 1, 1, 1, 1, 1, 1, 1, 1, 1, 1, 1, 4], [0, 1.166249705, 2.270133367, 3.348514167, 4.393962215, 5.415026464, 6.420877785, 7.440098956, 8.453121383, 9.451844239, 10.415694839, 11.355045125, 12.27538808, 13.187007209, 14.108269027, 15.039275622, 16], False, 3, [1, 1, 1, 1, 1, 1, 1, 1, 1, 1, 1, 1, 1, 1, 1, 1, 1, 1, 1], False), False)
sketch4.addGeometry(Part.BSplineCurve([V(5.28155, -6.660256, 0), V(5.299363, -6.659581, 0), V(5.335063, -6.658226, 0), V(5.388105, -6.647204, 0), V(5.440507, -6.629366, 0), V(5.492561, -6.604755, 0), V(5.54375, -6.572548, 0), V(5.595425, -6.534772, 0), V(5.645857, -6.488684, 0), V(5.677923, -6.454357, 0), V(5.694511, -6.436599, 0)], [4, 1, 1, 1, 1, 1, 1, 1, 4], [0, 0.88288272, 1.769486374, 2.674910571, 3.623812639, 4.617874466, 5.670434592, 6.794841017, 8], False, 3, [1, 1, 1, 1, 1, 1, 1, 1, 1, 1, 1], False), False)
sketch4.addGeometry(Part.LineSegment(V(5.694511, -6.436599, 0), V(6.223157, -6.557893, 0)), False)
sketch4.addGeometry(Part.LineSegment(V(6.223157, -6.557893, 0), V(5.811599, -8.5, 0)), False)
sketch4.addConstraint(Sketcher.Constraint("Block", 2))
sketch4.addConstraint(Sketcher.Constraint("Block", 3))
sketch4.addConstraint(Sketcher.Constraint("Block", 4))
sketch4.addConstraint(Sketcher.Constraint("Block", 5))
sketch4.addConstraint(Sketcher.Constraint("Block", 9))
sketch4.addConstraint(Sketcher.Constraint("Block", 10))
sketch4.addConstraint(Sketcher.Constraint("Block", 14))
sketch4.addConstraint(Sketcher.Constraint("Block", 15))
sketch4.addConstraint(Sketcher.Constraint("Block", 21))
sketch4.addConstraint(Sketcher.Constraint("Block", 22))
sketch4.addConstraint(Sketcher.Constraint("Block", 23))
sketch4.addConstraint(Sketcher.Constraint("Block", 24))
sketch4.addConstraint(Sketcher.Constraint("Block", 28))
sketch4.addConstraint(Sketcher.Constraint("Block", 29))
sketch4.addConstraint(Sketcher.Constraint("Block", 33))
sketch4.addConstraint(Sketcher.Constraint("Block", 34))
sketch4.addConstraint(Sketcher.Constraint("Block", 42))
sketch4.addConstraint(Sketcher.Constraint("Block", 43))
sketch4.addConstraint(Sketcher.Constraint("Block", 44))
sketch4.addConstraint(Sketcher.Constraint("Block", 45))
sketch4.addConstraint(Sketcher.Constraint("Block", 47))
sketch4.addConstraint(Sketcher.Constraint("Block", 48))
sketch4.addConstraint(Sketcher.Constraint("Block", 49))
sketch4.addConstraint(Sketcher.Constraint("Block", 50))
sketch4.addConstraint(Sketcher.Constraint("Coincident", 0, 2, 1, 1))
sketch4.addConstraint(Sketcher.Constraint("Coincident", 1, 2, 2, 1))
sketch4.addConstraint(Sketcher.Constraint("Coincident", 5, 2, 6, 1))
sketch4.addConstraint(Sketcher.Constraint("Coincident", 6, 2, 7, 1))
sketch4.addConstraint(Sketcher.Constraint("Coincident", 7, 2, 8, 1))
sketch4.addConstraint(Sketcher.Constraint("Coincident", 8, 2, 9, 1))
sketch4.addConstraint(Sketcher.Constraint("Coincident", 10, 2, 11, 1))
sketch4.addConstraint(Sketcher.Constraint("Coincident", 11, 2, 12, 1))
sketch4.addConstraint(Sketcher.Constraint("Coincident", 12, 2, 13, 1))
sketch4.addConstraint(Sketcher.Constraint("Coincident", 13, 2, 14, 1))
sketch4.addConstraint(Sketcher.Constraint("Coincident", 15, 2, 16, 1))
sketch4.addConstraint(Sketcher.Constraint("Coincident", 16, 2, 17, 1))
sketch4.addConstraint(Sketcher.Constraint("Coincident", 17, 2, 18, 1))
sketch4.addConstraint(Sketcher.Constraint("Coincident", 18, 2, 0, 1))
sketch4.addConstraint(Sketcher.Constraint("Coincident", 19, 2, 20, 1))
sketch4.addConstraint(Sketcher.Constraint("Coincident", 20, 2, 21, 1))
sketch4.addConstraint(Sketcher.Constraint("Coincident", 24, 2, 25, 1))
sketch4.addConstraint(Sketcher.Constraint("Coincident", 25, 2, 26, 1))
sketch4.addConstraint(Sketcher.Constraint("Coincident", 26, 2, 27, 1))
sketch4.addConstraint(Sketcher.Constraint("Coincident", 27, 2, 28, 1))
sketch4.addConstraint(Sketcher.Constraint("Coincident", 29, 2, 30, 1))
sketch4.addConstraint(Sketcher.Constraint("Coincident", 30, 2, 31, 1))
sketch4.addConstraint(Sketcher.Constraint("Coincident", 31, 2, 32, 1))
sketch4.addConstraint(Sketcher.Constraint("Coincident", 32, 2, 33, 1))
sketch4.addConstraint(Sketcher.Constraint("Coincident", 34, 2, 35, 1))
sketch4.addConstraint(Sketcher.Constraint("Coincident", 35, 2, 36, 1))
sketch4.addConstraint(Sketcher.Constraint("Coincident", 36, 2, 37, 1))
sketch4.addConstraint(Sketcher.Constraint("Coincident", 37, 2, 19, 1))
sketch4.addConstraint(Sketcher.Constraint("Coincident", 38, 2, 39, 1))
sketch4.addConstraint(Sketcher.Constraint("Coincident", 39, 2, 40, 1))
sketch4.addConstraint(Sketcher.Constraint("Coincident", 40, 2, 41, 1))
sketch4.addConstraint(Sketcher.Constraint("Coincident", 41, 2, 42, 1))
sketch4.addConstraint(Sketcher.Constraint("Coincident", 45, 2, 46, 1))
sketch4.addConstraint(Sketcher.Constraint("Coincident", 46, 2, 47, 1))
sketch4.addConstraint(Sketcher.Constraint("Coincident", 50, 2, 51, 1))
sketch4.addConstraint(Sketcher.Constraint("Coincident", 51, 2, 52, 1))
sketch4.addConstraint(Sketcher.Constraint("Coincident", 52, 2, 38, 1))
sketch4.addConstraint(Sketcher.Constraint("Horizontal", 0))
sketch4.addConstraint(Sketcher.Constraint("Vertical", 1))
sketch4.addConstraint(Sketcher.Constraint("Vertical", 6))
sketch4.addConstraint(Sketcher.Constraint("Horizontal", 7))
sketch4.addConstraint(Sketcher.Constraint("Vertical", 8))
sketch4.addConstraint(Sketcher.Constraint("Vertical", 11))
sketch4.addConstraint(Sketcher.Constraint("Horizontal", 12))
sketch4.addConstraint(Sketcher.Constraint("Vertical", 13))
sketch4.addConstraint(Sketcher.Constraint("Vertical", 16))
sketch4.addConstraint(Sketcher.Constraint("Horizontal", 17))
sketch4.addConstraint(Sketcher.Constraint("Vertical", 18))
sketch4.addConstraint(Sketcher.Constraint("Horizontal", 19))
sketch4.addConstraint(Sketcher.Constraint("Vertical", 20))
sketch4.addConstraint(Sketcher.Constraint("Vertical", 25))
sketch4.addConstraint(Sketcher.Constraint("Horizontal", 26))
sketch4.addConstraint(Sketcher.Constraint("Vertical", 27))
sketch4.addConstraint(Sketcher.Constraint("Vertical", 30))
sketch4.addConstraint(Sketcher.Constraint("Horizontal", 31))
sketch4.addConstraint(Sketcher.Constraint("Vertical", 32))
sketch4.addConstraint(Sketcher.Constraint("Vertical", 35))
sketch4.addConstraint(Sketcher.Constraint("Horizontal", 36))
sketch4.addConstraint(Sketcher.Constraint("Vertical", 37))
sketch4.addConstraint(Sketcher.Constraint("Horizontal", 38))
sketch4.addConstraint(Sketcher.Constraint("Vertical", 39))
sketch4.addConstraint(Sketcher.Constraint("Horizontal", 40))
sketch4.addConstraint(Sketcher.Constraint("Horizontal", 7, 2, 11, 2))
sketch4.addConstraint(Sketcher.Constraint("Horizontal", 12, 2, 16, 2))
sketch4.addConstraint(Sketcher.Constraint("Horizontal", 18, 2, 19, 2))
sketch4.addConstraint(Sketcher.Constraint("Horizontal", 17, 2, 25, 2))
sketch4.addConstraint(Sketcher.Constraint("Horizontal", 26, 2, 30, 2))
sketch4.addConstraint(Sketcher.Constraint("Horizontal", 31, 2, 35, 2))
sketch4.addConstraint(Sketcher.Constraint("Equal", 0, 7))
sketch4.addConstraint(Sketcher.Constraint("Equal", 17, 19))
sketch4.addConstraint(Sketcher.Constraint("DistanceY", 6, 2, -1, 1, Q("5 mm")))
sketch4.addConstraint(Sketcher.Constraint("DistanceY", 38, 2, -1, 1, Q("8.5 mm")))
sketch4.addConstraint(Sketcher.Constraint("DistanceX", 38, 2, 38, 1, Q("1.59365 mm")))
sketch4.addConstraint(Sketcher.Constraint("DistanceY", 1, 1, 1, 2, Q("0.305689 mm")))
sketch4.addConstraint(Sketcher.Constraint("DistanceX", -1, 1, 52, 2, Q("5.811599 mm")))
sketch4.addConstraint(Sketcher.Constraint("DistanceX", 40, 1, 40, 2, Q("1.095853 mm")))
sketch4.addConstraint(Sketcher.Constraint("DistanceY", 39, 1, 39, 2, Q("0.583333 mm")))
sketch4.addConstraint(Sketcher.Constraint("DistanceY", 51, 2, 46, 2, Q("0.705329 mm")))
sketch4.addConstraint(Sketcher.Constraint("DistanceX", 39, 2, 51, 2, Q("2.005208 mm")))
pocket2 = body.newObject("PartDesign::Pocket", "Pocket001")
pocket2.Profile = sketch4
pocket2.Length = 1

doc.recompute()
